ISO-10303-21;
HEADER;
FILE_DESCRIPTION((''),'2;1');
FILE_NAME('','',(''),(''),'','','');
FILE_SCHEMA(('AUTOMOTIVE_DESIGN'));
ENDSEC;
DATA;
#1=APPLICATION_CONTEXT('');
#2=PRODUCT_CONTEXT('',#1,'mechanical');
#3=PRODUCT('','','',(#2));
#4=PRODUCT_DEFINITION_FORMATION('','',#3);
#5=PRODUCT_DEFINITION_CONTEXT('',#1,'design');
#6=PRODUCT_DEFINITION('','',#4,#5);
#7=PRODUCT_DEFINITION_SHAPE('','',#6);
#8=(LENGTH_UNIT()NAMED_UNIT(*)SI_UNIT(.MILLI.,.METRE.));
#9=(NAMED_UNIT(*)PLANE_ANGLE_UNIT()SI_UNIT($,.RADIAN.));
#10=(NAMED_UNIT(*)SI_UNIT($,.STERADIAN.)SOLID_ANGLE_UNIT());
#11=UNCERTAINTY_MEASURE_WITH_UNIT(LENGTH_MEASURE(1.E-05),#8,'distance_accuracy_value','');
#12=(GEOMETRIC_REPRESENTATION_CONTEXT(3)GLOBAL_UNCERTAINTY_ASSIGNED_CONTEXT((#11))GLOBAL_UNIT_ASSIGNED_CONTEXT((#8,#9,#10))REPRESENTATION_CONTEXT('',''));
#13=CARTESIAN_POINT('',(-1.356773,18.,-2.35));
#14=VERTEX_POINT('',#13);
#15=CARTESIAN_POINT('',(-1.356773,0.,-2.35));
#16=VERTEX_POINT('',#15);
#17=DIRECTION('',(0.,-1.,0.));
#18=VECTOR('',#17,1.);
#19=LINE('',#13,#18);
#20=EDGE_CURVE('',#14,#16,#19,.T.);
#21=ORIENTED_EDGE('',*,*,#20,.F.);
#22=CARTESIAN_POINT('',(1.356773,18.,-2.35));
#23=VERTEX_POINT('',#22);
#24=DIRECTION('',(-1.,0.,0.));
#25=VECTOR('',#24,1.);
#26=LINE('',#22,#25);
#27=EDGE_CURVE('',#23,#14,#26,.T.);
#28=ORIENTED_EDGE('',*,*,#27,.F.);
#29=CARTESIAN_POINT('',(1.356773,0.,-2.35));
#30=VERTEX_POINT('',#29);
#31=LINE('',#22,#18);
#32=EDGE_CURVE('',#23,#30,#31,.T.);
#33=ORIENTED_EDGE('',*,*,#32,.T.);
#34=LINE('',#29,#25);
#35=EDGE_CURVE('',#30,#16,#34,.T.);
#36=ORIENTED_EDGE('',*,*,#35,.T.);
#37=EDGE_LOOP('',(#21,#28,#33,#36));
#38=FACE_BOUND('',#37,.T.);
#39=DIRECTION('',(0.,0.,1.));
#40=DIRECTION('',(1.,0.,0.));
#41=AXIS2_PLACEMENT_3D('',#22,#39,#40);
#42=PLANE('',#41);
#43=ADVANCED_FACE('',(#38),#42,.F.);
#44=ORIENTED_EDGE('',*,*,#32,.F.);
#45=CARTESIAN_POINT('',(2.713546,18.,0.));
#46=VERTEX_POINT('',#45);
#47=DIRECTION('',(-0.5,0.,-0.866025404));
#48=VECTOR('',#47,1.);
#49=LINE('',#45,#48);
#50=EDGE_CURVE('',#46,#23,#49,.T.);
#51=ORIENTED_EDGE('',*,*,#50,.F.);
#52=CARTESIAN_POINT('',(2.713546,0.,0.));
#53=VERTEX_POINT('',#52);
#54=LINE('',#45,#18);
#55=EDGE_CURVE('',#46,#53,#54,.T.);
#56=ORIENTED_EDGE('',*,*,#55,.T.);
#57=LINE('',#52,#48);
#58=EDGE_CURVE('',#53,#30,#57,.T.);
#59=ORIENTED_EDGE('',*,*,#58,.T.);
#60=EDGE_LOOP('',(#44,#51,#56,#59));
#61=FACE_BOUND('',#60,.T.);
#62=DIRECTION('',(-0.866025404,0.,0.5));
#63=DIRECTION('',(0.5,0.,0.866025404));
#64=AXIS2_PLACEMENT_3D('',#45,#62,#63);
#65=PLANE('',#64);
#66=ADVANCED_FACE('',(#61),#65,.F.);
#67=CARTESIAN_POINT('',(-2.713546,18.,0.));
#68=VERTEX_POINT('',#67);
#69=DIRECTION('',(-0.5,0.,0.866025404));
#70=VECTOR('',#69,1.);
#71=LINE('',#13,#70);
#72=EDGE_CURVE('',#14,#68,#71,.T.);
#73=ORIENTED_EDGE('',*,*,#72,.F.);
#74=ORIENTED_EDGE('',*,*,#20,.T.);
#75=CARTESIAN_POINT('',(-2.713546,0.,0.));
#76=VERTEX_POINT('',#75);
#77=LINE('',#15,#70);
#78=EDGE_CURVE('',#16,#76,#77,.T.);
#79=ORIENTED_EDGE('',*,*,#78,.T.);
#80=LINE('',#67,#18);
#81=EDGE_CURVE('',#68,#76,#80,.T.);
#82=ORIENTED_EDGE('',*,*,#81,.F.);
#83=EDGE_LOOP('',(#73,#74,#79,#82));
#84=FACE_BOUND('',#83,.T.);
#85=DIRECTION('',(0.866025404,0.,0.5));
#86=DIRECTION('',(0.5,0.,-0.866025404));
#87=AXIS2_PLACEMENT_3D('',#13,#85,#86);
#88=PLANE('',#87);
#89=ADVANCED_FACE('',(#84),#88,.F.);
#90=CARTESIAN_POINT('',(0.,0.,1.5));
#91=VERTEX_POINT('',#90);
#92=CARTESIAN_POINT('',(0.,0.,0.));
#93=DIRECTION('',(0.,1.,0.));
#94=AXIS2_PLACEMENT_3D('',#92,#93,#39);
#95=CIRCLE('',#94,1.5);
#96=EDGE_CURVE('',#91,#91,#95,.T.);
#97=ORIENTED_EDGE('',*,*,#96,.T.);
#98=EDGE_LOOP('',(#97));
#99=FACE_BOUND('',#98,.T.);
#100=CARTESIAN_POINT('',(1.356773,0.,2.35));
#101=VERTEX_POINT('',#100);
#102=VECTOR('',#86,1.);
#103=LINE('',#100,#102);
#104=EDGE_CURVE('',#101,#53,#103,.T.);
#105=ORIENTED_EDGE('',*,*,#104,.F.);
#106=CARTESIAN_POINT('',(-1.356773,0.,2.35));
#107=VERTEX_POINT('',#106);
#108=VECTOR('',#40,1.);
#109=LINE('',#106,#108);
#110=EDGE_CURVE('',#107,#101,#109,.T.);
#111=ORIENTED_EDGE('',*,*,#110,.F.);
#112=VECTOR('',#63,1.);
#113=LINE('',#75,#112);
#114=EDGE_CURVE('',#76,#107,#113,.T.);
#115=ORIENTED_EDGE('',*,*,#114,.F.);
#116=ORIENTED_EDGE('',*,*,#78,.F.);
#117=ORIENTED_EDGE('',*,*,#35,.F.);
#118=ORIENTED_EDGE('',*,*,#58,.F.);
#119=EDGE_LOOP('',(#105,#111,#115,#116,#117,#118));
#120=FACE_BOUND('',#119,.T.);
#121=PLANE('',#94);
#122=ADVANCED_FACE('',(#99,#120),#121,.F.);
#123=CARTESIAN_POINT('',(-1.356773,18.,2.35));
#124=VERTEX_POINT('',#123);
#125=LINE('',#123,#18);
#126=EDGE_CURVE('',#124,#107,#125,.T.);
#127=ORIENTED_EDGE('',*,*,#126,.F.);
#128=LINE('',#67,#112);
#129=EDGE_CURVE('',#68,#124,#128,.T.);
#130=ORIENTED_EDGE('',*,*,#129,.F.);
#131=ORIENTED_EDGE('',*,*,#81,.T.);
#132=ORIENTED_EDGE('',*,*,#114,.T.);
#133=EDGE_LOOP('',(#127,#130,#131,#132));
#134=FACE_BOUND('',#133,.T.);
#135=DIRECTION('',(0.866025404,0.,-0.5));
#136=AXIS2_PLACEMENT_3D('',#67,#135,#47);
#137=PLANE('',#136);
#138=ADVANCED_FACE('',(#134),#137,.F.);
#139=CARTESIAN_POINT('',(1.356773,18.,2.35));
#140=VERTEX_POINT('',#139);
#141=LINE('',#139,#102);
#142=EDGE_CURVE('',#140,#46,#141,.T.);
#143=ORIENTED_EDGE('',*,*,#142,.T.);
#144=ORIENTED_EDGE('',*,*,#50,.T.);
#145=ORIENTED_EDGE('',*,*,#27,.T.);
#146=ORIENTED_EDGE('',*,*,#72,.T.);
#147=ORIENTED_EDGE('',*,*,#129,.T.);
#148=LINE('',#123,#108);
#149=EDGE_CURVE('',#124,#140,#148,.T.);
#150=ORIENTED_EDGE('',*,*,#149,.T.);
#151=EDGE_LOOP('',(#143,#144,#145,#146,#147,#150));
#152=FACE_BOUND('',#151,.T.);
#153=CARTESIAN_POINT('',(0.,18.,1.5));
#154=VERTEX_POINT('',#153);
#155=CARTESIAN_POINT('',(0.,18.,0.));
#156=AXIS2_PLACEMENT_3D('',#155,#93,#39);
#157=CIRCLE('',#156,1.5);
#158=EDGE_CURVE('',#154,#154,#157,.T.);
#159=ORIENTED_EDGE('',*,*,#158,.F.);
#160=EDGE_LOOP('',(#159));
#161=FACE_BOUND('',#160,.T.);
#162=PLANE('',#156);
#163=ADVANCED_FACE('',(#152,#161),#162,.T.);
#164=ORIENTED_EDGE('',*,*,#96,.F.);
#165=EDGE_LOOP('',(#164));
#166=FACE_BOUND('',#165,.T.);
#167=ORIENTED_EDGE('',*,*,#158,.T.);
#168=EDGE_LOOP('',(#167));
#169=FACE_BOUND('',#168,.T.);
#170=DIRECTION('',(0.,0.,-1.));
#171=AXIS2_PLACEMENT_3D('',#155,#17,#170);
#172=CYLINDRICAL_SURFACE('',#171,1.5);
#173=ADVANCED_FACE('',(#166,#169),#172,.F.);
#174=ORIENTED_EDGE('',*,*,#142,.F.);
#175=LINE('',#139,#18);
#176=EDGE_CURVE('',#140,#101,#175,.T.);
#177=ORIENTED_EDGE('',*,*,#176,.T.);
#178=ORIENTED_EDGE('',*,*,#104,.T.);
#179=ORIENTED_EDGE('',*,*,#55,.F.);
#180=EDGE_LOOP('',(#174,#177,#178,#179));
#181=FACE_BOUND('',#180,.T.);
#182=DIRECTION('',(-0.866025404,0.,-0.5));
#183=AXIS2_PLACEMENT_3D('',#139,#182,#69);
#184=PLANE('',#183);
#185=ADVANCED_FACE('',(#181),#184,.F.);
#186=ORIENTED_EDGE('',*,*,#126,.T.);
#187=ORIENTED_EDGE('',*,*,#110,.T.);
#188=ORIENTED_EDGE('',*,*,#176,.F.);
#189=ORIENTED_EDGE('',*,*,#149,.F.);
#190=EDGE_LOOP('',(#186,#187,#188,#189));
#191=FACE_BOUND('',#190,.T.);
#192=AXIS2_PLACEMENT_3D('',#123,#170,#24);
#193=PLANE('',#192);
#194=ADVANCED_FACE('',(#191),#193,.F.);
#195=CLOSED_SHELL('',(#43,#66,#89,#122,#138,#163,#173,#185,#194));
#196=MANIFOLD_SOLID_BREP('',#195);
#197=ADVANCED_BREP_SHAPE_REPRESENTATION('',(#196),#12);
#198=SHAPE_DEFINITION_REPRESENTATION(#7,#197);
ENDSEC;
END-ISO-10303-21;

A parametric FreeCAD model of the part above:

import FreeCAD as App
import Part
import Sketcher

V = App.Vector
Q = App.Units.Quantity

doc = App.newDocument("Part")
body = doc.addObject("PartDesign::Body", "Body")

sketch1 = doc.addObject("Sketcher::SketchObject", "Sketch")
body.addObject(sketch1)
sketch1.AttachmentSupport = (doc.XZ_Plane, [""])
sketch1.MapMode = "FlatFace"
sketch1.addGeometry(Part.LineSegment(V(1.4, 2.4, 0), V(2.7, 0, 0)), False)
sketch1.addGeometry(Part.LineSegment(V(2.7, 0, 0), V(1.4, -2.4, 0)), False)
sketch1.addGeometry(Part.LineSegment(V(1.4, -2.4, 0), V(-1.4, -2.4, 0)), False)
sketch1.addGeometry(Part.LineSegment(V(-1.4, -2.4, 0), V(-2.7, 0, 0)), False)
sketch1.addGeometry(Part.LineSegment(V(-2.7, 0, 0), V(-1.4, 2.4, 0)), False)
sketch1.addGeometry(Part.LineSegment(V(-1.4, 2.4, 0), V(1.4, 2.4, 0)), False)
sketch1.addGeometry(Part.Circle(V(0, 0, 0), V(0, 0, 1), 1.5), False)
sketch1.addConstraint(Sketcher.Constraint("Coincident", 0, 2, 1, 1))
sketch1.addConstraint(Sketcher.Constraint("Coincident", 1, 2, 2, 1))
sketch1.addConstraint(Sketcher.Constraint("Coincident", 2, 2, 3, 1))
sketch1.addConstraint(Sketcher.Constraint("Coincident", 3, 2, 4, 1))
sketch1.addConstraint(Sketcher.Constraint("Coincident", 4, 2, 5, 1))
sketch1.addConstraint(Sketcher.Constraint("Coincident", 5, 2, 0, 1))
sketch1.addConstraint(Sketcher.Constraint("Horizontal", 2))
sketch1.addConstraint(Sketcher.Constraint("Horizontal", 5))
sketch1.addConstraint(Sketcher.Constraint("Coincident", 6, 3, -1, 1))
sketch1.addConstraint(Sketcher.Constraint("Symmetric", 0, 2, 3, 2, -1, 1))
sketch1.addConstraint(Sketcher.Constraint("Symmetric", 1, 2, 4, 2, -1, 1))
sketch1.addConstraint(Sketcher.Constraint("PointOnObject", 0, 2, -1))
sketch1.addConstraint(Sketcher.Constraint("Parallel", 0, 3))
sketch1.addConstraint(Sketcher.Constraint("Vertical", 2, 2, 4, 2))
sketch1.addConstraint(Sketcher.Constraint("Diameter", 6, 3.0))
sketch1.addConstraint(Sketcher.Constraint("Angle", 0, Q("-60 deg")))
sketch1.addConstraint(Sketcher.Constraint("DistanceY", 2, 2, 4, 2, 4.7))
sketch1.addConstraint(Sketcher.Constraint("DistanceX", 2, 2, 2, 1, 2.713546))
pad1 = doc.addObject("PartDesign::Pad", "Pad")
body.addObject(pad1)
pad1.Profile = sketch1
pad1.Length = 18
pad1.Reversed = True

doc.recompute()
